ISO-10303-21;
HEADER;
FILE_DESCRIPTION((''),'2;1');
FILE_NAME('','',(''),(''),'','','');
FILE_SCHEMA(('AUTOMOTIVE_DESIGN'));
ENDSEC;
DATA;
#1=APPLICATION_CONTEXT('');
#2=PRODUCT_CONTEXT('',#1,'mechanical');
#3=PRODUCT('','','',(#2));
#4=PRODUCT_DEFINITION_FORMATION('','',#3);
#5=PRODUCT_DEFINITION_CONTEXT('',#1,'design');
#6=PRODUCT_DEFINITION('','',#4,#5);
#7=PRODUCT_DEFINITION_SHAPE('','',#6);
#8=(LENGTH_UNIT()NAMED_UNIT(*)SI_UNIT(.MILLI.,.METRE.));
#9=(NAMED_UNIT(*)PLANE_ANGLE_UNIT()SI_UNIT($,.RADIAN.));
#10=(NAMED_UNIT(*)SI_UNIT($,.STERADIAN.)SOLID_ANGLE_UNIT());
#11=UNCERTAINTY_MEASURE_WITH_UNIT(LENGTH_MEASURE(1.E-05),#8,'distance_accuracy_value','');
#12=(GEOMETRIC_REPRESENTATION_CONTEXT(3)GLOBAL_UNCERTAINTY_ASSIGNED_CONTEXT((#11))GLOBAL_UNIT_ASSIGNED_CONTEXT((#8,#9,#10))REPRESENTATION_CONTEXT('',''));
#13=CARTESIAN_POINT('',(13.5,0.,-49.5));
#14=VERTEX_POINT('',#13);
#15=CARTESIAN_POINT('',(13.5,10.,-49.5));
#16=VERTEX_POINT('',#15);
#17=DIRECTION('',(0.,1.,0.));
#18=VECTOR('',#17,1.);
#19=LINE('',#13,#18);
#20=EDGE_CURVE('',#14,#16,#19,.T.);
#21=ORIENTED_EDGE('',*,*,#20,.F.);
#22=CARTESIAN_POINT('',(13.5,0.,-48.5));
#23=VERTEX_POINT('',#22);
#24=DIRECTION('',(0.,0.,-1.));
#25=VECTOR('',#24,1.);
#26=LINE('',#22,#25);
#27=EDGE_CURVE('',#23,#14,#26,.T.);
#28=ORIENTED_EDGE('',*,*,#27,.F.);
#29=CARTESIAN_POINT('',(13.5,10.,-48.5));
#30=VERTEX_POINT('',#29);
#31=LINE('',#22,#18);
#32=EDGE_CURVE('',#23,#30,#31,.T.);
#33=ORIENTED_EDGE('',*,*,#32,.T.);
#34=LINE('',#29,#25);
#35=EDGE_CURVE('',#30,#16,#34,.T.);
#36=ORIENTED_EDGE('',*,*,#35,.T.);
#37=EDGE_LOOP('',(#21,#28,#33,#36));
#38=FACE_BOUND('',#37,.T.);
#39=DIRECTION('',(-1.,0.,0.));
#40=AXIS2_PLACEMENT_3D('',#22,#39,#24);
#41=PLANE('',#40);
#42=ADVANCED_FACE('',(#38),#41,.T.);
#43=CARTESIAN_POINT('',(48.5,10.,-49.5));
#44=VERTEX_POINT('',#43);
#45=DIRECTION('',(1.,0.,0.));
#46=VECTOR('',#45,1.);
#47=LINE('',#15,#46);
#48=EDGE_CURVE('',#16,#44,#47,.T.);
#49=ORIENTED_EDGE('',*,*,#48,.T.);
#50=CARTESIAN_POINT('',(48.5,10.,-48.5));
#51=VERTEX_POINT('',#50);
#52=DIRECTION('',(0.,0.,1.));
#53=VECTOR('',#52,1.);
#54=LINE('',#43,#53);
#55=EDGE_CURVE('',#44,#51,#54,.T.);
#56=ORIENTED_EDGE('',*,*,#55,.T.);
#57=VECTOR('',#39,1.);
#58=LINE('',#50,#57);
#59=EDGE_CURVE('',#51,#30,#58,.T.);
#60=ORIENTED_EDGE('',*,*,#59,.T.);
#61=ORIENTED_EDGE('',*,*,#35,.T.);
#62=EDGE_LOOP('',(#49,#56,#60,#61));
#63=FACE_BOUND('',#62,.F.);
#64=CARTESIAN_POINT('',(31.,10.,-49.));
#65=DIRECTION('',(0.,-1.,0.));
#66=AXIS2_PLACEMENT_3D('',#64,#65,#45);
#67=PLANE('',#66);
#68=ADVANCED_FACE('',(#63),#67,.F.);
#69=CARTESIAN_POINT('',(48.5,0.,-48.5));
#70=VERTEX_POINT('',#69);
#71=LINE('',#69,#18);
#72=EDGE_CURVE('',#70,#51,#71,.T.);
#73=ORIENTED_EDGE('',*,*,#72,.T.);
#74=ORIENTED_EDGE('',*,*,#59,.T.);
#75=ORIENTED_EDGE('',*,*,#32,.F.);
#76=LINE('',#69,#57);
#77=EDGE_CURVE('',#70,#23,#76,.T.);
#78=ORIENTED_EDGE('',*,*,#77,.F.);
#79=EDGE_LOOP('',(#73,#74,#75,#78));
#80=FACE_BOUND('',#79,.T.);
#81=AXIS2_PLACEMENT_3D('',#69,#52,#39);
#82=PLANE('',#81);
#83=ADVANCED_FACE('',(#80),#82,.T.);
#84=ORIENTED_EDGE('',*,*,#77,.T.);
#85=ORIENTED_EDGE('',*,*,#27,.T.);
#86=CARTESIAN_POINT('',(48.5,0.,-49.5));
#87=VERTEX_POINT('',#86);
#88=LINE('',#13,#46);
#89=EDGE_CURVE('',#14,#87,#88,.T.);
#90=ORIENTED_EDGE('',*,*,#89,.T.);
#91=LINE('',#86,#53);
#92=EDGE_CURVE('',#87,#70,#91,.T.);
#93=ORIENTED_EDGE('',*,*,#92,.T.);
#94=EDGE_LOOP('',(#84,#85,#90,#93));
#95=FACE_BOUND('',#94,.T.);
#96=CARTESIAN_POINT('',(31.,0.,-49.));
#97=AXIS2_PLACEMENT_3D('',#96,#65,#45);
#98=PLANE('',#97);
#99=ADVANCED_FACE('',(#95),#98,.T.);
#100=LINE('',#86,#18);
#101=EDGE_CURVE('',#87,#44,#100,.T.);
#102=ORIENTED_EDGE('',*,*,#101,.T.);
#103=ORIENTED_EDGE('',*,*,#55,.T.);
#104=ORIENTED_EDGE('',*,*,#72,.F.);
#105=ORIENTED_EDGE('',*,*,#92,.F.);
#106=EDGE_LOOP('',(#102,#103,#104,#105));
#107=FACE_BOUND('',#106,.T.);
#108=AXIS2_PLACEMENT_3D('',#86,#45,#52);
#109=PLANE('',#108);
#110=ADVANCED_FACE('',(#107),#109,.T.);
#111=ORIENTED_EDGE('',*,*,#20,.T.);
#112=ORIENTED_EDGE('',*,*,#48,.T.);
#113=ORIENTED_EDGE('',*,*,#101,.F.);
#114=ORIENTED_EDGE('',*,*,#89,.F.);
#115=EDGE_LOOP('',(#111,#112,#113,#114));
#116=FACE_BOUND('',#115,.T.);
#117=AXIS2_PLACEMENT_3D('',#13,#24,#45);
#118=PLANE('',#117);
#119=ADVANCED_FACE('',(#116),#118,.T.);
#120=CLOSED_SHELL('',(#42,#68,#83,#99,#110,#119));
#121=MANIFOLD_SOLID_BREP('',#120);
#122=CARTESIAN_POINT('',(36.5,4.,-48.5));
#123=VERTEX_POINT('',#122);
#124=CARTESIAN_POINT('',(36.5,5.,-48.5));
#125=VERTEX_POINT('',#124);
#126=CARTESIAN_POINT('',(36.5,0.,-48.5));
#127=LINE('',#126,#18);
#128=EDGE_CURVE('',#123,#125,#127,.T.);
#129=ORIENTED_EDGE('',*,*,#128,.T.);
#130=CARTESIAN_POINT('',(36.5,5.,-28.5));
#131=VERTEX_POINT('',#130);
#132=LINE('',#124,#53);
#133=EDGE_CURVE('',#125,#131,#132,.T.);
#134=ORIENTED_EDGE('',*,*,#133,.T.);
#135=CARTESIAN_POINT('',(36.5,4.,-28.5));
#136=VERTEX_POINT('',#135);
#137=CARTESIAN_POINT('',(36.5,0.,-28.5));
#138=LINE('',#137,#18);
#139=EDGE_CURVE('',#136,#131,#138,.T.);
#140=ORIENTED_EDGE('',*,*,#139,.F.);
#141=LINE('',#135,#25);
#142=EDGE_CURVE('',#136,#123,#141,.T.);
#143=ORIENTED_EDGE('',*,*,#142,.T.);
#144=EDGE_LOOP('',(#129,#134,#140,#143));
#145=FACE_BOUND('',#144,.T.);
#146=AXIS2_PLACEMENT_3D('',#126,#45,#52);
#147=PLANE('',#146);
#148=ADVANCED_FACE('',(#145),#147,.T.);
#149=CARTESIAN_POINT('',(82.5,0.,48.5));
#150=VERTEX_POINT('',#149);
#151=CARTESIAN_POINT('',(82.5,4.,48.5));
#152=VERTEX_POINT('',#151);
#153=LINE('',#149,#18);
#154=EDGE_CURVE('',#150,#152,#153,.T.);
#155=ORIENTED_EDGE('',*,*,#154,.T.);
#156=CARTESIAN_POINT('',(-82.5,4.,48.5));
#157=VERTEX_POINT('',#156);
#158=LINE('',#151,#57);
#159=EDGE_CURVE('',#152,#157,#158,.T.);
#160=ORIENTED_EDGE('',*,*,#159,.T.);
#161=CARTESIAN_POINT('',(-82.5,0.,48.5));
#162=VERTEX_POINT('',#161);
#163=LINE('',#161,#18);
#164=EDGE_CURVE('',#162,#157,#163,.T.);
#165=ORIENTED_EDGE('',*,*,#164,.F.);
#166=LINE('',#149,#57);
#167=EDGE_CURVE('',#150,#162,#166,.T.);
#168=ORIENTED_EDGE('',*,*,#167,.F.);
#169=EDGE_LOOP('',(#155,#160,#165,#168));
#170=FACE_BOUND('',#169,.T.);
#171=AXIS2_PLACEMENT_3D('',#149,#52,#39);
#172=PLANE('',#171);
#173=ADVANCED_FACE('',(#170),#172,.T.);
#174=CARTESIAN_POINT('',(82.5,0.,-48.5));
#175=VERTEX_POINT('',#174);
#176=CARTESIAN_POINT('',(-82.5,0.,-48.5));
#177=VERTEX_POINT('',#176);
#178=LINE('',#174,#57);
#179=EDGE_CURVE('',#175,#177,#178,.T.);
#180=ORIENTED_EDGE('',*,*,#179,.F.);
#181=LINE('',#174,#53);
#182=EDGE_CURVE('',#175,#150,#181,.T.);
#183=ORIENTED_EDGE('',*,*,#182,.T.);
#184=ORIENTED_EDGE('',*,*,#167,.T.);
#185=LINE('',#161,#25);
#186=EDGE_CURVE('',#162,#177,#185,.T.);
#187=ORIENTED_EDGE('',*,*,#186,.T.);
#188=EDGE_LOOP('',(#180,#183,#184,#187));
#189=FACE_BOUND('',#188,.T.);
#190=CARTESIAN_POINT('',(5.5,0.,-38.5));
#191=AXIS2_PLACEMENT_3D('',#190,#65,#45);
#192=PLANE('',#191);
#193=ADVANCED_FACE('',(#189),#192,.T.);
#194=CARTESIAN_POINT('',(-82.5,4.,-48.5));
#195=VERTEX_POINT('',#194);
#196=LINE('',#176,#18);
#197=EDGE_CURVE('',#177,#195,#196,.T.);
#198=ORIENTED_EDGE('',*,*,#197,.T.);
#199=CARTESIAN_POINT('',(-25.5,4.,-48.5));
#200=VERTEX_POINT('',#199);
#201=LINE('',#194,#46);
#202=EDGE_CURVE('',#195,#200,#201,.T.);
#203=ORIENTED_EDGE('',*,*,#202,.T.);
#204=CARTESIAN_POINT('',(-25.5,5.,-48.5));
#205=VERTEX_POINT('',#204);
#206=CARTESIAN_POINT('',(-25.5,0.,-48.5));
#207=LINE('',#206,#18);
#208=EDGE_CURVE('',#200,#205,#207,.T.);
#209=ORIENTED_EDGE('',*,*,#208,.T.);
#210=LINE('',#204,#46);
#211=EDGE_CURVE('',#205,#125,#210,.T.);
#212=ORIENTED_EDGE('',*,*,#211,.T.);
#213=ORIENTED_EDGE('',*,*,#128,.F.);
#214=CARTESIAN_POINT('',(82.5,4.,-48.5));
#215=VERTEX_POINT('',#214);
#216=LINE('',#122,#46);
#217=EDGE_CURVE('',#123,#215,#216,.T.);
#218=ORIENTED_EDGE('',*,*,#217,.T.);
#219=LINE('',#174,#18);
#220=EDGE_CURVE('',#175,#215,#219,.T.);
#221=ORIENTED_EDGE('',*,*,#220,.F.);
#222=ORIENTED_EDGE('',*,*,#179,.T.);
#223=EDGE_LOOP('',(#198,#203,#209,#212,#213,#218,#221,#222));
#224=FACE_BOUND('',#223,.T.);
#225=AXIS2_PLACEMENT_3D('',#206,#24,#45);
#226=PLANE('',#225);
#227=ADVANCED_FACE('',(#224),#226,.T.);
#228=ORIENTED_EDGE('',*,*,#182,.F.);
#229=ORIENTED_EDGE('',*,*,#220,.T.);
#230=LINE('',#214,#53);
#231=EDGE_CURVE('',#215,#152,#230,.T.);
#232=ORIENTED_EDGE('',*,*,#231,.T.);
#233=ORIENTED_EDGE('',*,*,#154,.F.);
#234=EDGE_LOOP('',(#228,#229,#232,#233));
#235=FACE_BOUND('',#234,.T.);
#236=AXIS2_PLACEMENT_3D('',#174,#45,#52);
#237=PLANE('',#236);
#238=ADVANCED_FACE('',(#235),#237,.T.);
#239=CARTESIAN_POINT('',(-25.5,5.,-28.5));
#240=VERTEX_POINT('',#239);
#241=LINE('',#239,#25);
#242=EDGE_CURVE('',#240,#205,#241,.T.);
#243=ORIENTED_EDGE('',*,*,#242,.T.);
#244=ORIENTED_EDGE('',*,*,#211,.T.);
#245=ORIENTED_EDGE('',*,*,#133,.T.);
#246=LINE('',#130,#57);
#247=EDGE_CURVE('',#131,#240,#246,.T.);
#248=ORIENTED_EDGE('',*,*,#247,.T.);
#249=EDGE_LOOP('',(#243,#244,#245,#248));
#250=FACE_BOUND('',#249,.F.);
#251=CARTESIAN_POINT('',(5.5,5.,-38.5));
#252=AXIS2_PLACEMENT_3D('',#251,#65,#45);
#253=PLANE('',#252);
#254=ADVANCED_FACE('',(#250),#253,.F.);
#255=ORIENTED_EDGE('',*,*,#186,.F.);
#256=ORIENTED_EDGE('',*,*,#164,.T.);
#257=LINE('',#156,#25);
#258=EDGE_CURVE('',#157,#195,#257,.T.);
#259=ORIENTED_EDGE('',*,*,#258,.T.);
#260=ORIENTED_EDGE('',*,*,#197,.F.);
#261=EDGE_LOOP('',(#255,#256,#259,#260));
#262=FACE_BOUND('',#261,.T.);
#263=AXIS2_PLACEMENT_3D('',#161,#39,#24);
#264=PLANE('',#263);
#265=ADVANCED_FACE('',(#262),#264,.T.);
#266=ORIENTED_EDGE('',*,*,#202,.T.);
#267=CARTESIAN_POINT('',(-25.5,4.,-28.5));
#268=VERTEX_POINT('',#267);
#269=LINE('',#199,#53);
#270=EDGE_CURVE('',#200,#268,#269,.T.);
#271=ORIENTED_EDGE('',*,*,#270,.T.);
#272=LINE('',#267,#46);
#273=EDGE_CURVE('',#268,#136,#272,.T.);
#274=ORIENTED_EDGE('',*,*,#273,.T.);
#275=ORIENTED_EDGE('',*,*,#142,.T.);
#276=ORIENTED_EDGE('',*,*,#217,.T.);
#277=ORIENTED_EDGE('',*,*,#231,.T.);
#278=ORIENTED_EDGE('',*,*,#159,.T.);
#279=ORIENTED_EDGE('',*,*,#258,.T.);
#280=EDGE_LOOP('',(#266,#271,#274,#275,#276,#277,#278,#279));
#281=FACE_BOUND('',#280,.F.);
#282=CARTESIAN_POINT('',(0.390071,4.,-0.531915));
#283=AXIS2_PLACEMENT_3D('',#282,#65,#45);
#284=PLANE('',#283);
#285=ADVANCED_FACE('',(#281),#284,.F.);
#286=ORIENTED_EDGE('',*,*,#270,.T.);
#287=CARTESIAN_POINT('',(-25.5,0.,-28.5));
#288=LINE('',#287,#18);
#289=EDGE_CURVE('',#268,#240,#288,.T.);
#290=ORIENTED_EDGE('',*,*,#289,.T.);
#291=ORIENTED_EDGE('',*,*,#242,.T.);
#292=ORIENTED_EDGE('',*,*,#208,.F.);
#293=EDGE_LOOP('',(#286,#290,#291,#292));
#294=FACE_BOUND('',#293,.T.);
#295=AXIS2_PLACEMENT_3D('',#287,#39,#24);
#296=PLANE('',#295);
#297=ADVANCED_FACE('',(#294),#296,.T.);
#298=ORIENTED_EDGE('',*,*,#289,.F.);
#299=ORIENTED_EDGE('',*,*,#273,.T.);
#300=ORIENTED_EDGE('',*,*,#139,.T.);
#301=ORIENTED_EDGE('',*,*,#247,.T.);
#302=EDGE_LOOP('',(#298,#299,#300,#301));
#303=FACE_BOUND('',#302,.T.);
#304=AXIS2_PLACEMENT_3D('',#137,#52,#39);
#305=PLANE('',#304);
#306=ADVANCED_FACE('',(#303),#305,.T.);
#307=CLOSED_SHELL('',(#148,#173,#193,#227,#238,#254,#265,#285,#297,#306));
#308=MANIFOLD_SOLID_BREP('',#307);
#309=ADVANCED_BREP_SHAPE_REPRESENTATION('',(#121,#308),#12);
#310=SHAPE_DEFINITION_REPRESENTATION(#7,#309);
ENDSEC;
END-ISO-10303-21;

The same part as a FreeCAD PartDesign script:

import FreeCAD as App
import Part
import Sketcher
Q = App.Units.Quantity

doc = App.newDocument("Part")
body = doc.addObject("PartDesign::Body", "Body")

# Sketch on XZ plane
sketch1 = body.newObject("Sketcher::SketchObject", "Sketch")
sketch1.AttachmentSupport = (doc.getObject("XZ_Plane"), [""])
sketch1.MapMode = "FlatFace"
sketch1.addGeometry(Part.LineSegment(App.Vector(82, 48, 0), App.Vector(-82, 48, 0)), False)
sketch1.addGeometry(Part.LineSegment(App.Vector(-82, 48, 0), App.Vector(-82, -48, 0)), False)
sketch1.addGeometry(Part.LineSegment(App.Vector(-82, -48, 0), App.Vector(-26, -48, 0)), False)
sketch1.addGeometry(Part.LineSegment(App.Vector(-26, -48, 0), App.Vector(-26, -28, 0)), False)
sketch1.addGeometry(Part.LineSegment(App.Vector(-26, -28, 0), App.Vector(36, -28, 0)), False)
sketch1.addGeometry(Part.LineSegment(App.Vector(36, -28, 0), App.Vector(36, -48, 0)), False)
sketch1.addGeometry(Part.LineSegment(App.Vector(36, -48, 0), App.Vector(82, -48, 0)), False)
sketch1.addGeometry(Part.LineSegment(App.Vector(82, -48, 0), App.Vector(82, 48, 0)), False)
sketch1.addConstraint(Sketcher.Constraint("Coincident", 0, 2, 1, 1))
sketch1.addConstraint(Sketcher.Constraint("Coincident", 1, 2, 2, 1))
sketch1.addConstraint(Sketcher.Constraint("Coincident", 2, 2, 3, 1))
sketch1.addConstraint(Sketcher.Constraint("Coincident", 3, 2, 4, 1))
sketch1.addConstraint(Sketcher.Constraint("Coincident", 4, 2, 5, 1))
sketch1.addConstraint(Sketcher.Constraint("Coincident", 5, 2, 6, 1))
sketch1.addConstraint(Sketcher.Constraint("Coincident", 6, 2, 7, 1))
sketch1.addConstraint(Sketcher.Constraint("Coincident", 7, 2, 0, 1))
sketch1.addConstraint(Sketcher.Constraint("Horizontal", 0))
sketch1.addConstraint(Sketcher.Constraint("Vertical", 1))
sketch1.addConstraint(Sketcher.Constraint("Horizontal", 2))
sketch1.addConstraint(Sketcher.Constraint("Vertical", 3))
sketch1.addConstraint(Sketcher.Constraint("Horizontal", 4))
sketch1.addConstraint(Sketcher.Constraint("Vertical", 5))
sketch1.addConstraint(Sketcher.Constraint("Horizontal", 6))
sketch1.addConstraint(Sketcher.Constraint("Vertical", 7))
sketch1.addConstraint(Sketcher.Constraint("Symmetric", 0, 2, 6, 2, -1, 1))
sketch1.addConstraint(Sketcher.Constraint("Horizontal", 2, 2, 5, 2))
sketch1.addConstraint(Sketcher.Constraint("DistanceX", 0, 2, 0, 1, Q("165 mm")))
sketch1.addConstraint(Sketcher.Constraint("DistanceX", 2, 1, 2, 2, Q("57 mm")))
sketch1.addConstraint(Sketcher.Constraint("DistanceX", 4, 1, 4, 2, Q("62 mm")))
sketch1.addConstraint(Sketcher.Constraint("DistanceY", 1, 2, 1, 1, Q("97 mm")))
sketch1.addConstraint(Sketcher.Constraint("DistanceY", 3, 1, 3, 2, Q("20 mm")))
pad1 = body.newObject("PartDesign::Pad", "Pad")
pad1.Profile = sketch1
pad1.Length = 4
pad1.Reversed = True

# Sketch on XZ plane
sketch2 = body.newObject("Sketcher::SketchObject", "Sketch001")
sketch2.AttachmentSupport = (doc.getObject("XZ_Plane"), [""])
sketch2.MapMode = "FlatFace"
sketch2.addGeometry(Part.LineSegment(App.Vector(-26, -28, 0), App.Vector(-26, -48, 0)), False)
sketch2.addGeometry(Part.LineSegment(App.Vector(-26, -48, 0), App.Vector(36, -48, 0)), False)
sketch2.addGeometry(Part.LineSegment(App.Vector(36, -48, 0), App.Vector(36, -28, 0)), False)
sketch2.addGeometry(Part.LineSegment(App.Vector(36, -28, 0), App.Vector(-26, -28, 0)), False)
sketch2.addConstraint(Sketcher.Constraint("Coincident", 0, 2, 1, 1))
sketch2.addConstraint(Sketcher.Constraint("Coincident", 1, 2, 2, 1))
sketch2.addConstraint(Sketcher.Constraint("Coincident", 2, 2, 3, 1))
sketch2.addConstraint(Sketcher.Constraint("Coincident", 3, 2, 0, 1))
sketch2.addConstraint(Sketcher.Constraint("Vertical", 0))
sketch2.addConstraint(Sketcher.Constraint("Horizontal", 1))
sketch2.addConstraint(Sketcher.Constraint("Vertical", 2))
sketch2.addConstraint(Sketcher.Constraint("Horizontal", 3))
sketch2.addConstraint(Sketcher.Constraint("DistanceX", 1, 1, 1, 2, Q("62 mm")))
sketch2.addConstraint(Sketcher.Constraint("DistanceY", 0, 2, 0, 1, Q("20 mm")))
sketch2.addConstraint(Sketcher.Constraint("DistanceX", 0, 2, -1, 1, Q("25.5 mm")))
sketch2.addConstraint(Sketcher.Constraint("DistanceY", 0, 2, -1, 1, Q("48.5 mm")))
pad2 = body.newObject("PartDesign::Pad", "Pad001")
pad2.Profile = sketch2
pad2.Length = 5
pad2.Reversed = True
body2 = doc.addObject("PartDesign::Body", "Body001")

# Sketch on XZ plane
sketch3 = body2.newObject("Sketcher::SketchObject", "Sketch002")
sketch3.AttachmentSupport = (doc.getObject("XZ_Plane001"), [""])
sketch3.MapMode = "FlatFace"
sketch3.addGeometry(Part.LineSegment(App.Vector(48.5, -49.5, 0), App.Vector(48.5, -48.5, 0)), False)
sketch3.addGeometry(Part.LineSegment(App.Vector(48.5, -48.5, 0), App.Vector(13.5, -48.5, 0)), False)
sketch3.addGeometry(Part.LineSegment(App.Vector(13.5, -48.5, 0), App.Vector(13.5, -49.5, 0)), False)
sketch3.addGeometry(Part.LineSegment(App.Vector(13.5, -49.5, 0), App.Vector(48.5, -49.5, 0)), False)
sketch3.addConstraint(Sketcher.Constraint("Coincident", 0, 2, 1, 1))
sketch3.addConstraint(Sketcher.Constraint("Coincident", 1, 2, 2, 1))
sketch3.addConstraint(Sketcher.Constraint("Coincident", 2, 2, 3, 1))
sketch3.addConstraint(Sketcher.Constraint("Coincident", 3, 2, 0, 1))
sketch3.addConstraint(Sketcher.Constraint("Vertical", 0))
sketch3.addConstraint(Sketcher.Constraint("Horizontal", 1))
sketch3.addConstraint(Sketcher.Constraint("Vertical", 2))
sketch3.addConstraint(Sketcher.Constraint("Horizontal", 3))
sketch3.addConstraint(Sketcher.Constraint("DistanceX", 1, 2, 1, 1, Q("35 mm")))
sketch3.addConstraint(Sketcher.Constraint("DistanceY", 0, 1, 0, 2, Q("1 mm")))
sketch3.addConstraint(Sketcher.Constraint("DistanceX", -1, 1, 0, 2, Q("48.5 mm")))
sketch3.addConstraint(Sketcher.Constraint("DistanceY", 0, 2, -1, 1, Q("48.5 mm")))
pad3 = body2.newObject("PartDesign::Pad", "Pad002")
pad3.Profile = sketch3
pad3.Length = 10
pad3.Reversed = True

doc.recompute()
